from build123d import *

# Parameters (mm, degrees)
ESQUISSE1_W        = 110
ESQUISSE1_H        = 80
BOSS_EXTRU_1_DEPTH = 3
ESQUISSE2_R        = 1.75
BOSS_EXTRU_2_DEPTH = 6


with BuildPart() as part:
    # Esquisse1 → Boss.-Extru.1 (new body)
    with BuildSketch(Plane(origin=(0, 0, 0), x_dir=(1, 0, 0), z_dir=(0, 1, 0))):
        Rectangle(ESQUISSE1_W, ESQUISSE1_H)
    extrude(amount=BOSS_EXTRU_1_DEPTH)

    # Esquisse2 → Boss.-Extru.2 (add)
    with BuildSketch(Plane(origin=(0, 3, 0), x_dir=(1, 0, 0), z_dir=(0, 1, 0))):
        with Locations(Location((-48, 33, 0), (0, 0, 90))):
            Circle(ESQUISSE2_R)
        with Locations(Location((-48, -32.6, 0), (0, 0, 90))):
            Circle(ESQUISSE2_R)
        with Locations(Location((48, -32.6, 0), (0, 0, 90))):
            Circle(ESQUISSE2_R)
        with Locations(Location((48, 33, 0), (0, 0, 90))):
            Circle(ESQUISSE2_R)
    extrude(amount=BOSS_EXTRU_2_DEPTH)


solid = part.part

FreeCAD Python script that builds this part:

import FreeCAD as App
import Part
import Sketcher
Q = App.Units.Quantity

doc = App.newDocument("Part")
body = doc.addObject("PartDesign::Body", "Body")

sketch1 = body.newObject("Sketcher::SketchObject", "Sketch")
sketch1.AttachmentSupport = (doc.getObject("XZ_Plane"), [""])
sketch1.MapMode = "FlatFace"
sketch1.addGeometry(Part.LineSegment(App.Vector(-55, -40, 0), App.Vector(-55, 40, 0)), False)
sketch1.addGeometry(Part.LineSegment(App.Vector(-55, 40, 0), App.Vector(55, 40, 0)), False)
sketch1.addGeometry(Part.LineSegment(App.Vector(55, 40, 0), App.Vector(55, -40, 0)), False)
sketch1.addGeometry(Part.LineSegment(App.Vector(55, -40, 0), App.Vector(-55, -40, 0)), False)
sketch1.addConstraint(Sketcher.Constraint("Coincident", 0, 2, 1, 1))
sketch1.addConstraint(Sketcher.Constraint("Coincident", 1, 2, 2, 1))
sketch1.addConstraint(Sketcher.Constraint("Coincident", 2, 2, 3, 1))
sketch1.addConstraint(Sketcher.Constraint("Coincident", 3, 2, 0, 1))
sketch1.addConstraint(Sketcher.Constraint("Vertical", 0))
sketch1.addConstraint(Sketcher.Constraint("Horizontal", 1))
sketch1.addConstraint(Sketcher.Constraint("Vertical", 2))
sketch1.addConstraint(Sketcher.Constraint("Horizontal", 3))
sketch1.addConstraint(Sketcher.Constraint("Symmetric", 0, 2, 2, 2, -1, 1))
sketch1.addConstraint(Sketcher.Constraint("DistanceX", 1, 1, 1, 2, Q("110 mm")))
sketch1.addConstraint(Sketcher.Constraint("DistanceY", 0, 1, 0, 2, Q("80 mm")))
pad1 = body.newObject("PartDesign::Pad", "Pad")
pad1.Profile = sketch1
pad1.Length = 3
pad1.Reversed = True

sketch2 = body.newObject("Sketcher::SketchObject", "Sketch001")
sketch2.AttachmentSupport = (doc.getObject("XZ_Plane"), [""])
sketch2.MapMode = "FlatFace"
sketch2.AttachmentOffset = App.Placement(App.Vector(0, 0, -3), App.Rotation())
sketch2.addGeometry(Part.Circle(App.Vector(-48, -33, 0), App.Vector(0, 0, 1), 1.75), False)
sketch2.addGeometry(Part.Circle(App.Vector(-48, 32.6, 0), App.Vector(0, 0, 1), 1.75), False)
sketch2.addGeometry(Part.Circle(App.Vector(48, 32.6, 0), App.Vector(0, 0, 1), 1.75), False)
sketch2.addGeometry(Part.Circle(App.Vector(48, -33, 0), App.Vector(0, 0, 1), 1.75), False)
sketch2.addConstraint(Sketcher.Constraint("Equal", 0, 1))
sketch2.addConstraint(Sketcher.Constraint("Equal", 1, 2))
sketch2.addConstraint(Sketcher.Constraint("Equal", 2, 3))
sketch2.addConstraint(Sketcher.Constraint("Symmetric", 1, 3, 2, 3, -2))
sketch2.addConstraint(Sketcher.Constraint("Symmetric", 0, 3, 3, 3, -2))
sketch2.addConstraint(Sketcher.Constraint("Vertical", 0, 3, 1, 3))
sketch2.addConstraint(Sketcher.Constraint("Diameter", 0, Q("3.5 mm")))
sketch2.addConstraint(Sketcher.Constraint("DistanceX", 0, 3, -1, 1, Q("48 mm")))
sketch2.addConstraint(Sketcher.Constraint("DistanceY", 0, 3, -1, 1, Q("33 mm")))
sketch2.addConstraint(Sketcher.Constraint("DistanceY", -1, 1, 1, 3, Q("32.6 mm")))
pad2 = body.newObject("PartDesign::Pad", "Pad001")
pad2.Profile = sketch2
pad2.Length = 6
pad2.Reversed = True

doc.recompute()
